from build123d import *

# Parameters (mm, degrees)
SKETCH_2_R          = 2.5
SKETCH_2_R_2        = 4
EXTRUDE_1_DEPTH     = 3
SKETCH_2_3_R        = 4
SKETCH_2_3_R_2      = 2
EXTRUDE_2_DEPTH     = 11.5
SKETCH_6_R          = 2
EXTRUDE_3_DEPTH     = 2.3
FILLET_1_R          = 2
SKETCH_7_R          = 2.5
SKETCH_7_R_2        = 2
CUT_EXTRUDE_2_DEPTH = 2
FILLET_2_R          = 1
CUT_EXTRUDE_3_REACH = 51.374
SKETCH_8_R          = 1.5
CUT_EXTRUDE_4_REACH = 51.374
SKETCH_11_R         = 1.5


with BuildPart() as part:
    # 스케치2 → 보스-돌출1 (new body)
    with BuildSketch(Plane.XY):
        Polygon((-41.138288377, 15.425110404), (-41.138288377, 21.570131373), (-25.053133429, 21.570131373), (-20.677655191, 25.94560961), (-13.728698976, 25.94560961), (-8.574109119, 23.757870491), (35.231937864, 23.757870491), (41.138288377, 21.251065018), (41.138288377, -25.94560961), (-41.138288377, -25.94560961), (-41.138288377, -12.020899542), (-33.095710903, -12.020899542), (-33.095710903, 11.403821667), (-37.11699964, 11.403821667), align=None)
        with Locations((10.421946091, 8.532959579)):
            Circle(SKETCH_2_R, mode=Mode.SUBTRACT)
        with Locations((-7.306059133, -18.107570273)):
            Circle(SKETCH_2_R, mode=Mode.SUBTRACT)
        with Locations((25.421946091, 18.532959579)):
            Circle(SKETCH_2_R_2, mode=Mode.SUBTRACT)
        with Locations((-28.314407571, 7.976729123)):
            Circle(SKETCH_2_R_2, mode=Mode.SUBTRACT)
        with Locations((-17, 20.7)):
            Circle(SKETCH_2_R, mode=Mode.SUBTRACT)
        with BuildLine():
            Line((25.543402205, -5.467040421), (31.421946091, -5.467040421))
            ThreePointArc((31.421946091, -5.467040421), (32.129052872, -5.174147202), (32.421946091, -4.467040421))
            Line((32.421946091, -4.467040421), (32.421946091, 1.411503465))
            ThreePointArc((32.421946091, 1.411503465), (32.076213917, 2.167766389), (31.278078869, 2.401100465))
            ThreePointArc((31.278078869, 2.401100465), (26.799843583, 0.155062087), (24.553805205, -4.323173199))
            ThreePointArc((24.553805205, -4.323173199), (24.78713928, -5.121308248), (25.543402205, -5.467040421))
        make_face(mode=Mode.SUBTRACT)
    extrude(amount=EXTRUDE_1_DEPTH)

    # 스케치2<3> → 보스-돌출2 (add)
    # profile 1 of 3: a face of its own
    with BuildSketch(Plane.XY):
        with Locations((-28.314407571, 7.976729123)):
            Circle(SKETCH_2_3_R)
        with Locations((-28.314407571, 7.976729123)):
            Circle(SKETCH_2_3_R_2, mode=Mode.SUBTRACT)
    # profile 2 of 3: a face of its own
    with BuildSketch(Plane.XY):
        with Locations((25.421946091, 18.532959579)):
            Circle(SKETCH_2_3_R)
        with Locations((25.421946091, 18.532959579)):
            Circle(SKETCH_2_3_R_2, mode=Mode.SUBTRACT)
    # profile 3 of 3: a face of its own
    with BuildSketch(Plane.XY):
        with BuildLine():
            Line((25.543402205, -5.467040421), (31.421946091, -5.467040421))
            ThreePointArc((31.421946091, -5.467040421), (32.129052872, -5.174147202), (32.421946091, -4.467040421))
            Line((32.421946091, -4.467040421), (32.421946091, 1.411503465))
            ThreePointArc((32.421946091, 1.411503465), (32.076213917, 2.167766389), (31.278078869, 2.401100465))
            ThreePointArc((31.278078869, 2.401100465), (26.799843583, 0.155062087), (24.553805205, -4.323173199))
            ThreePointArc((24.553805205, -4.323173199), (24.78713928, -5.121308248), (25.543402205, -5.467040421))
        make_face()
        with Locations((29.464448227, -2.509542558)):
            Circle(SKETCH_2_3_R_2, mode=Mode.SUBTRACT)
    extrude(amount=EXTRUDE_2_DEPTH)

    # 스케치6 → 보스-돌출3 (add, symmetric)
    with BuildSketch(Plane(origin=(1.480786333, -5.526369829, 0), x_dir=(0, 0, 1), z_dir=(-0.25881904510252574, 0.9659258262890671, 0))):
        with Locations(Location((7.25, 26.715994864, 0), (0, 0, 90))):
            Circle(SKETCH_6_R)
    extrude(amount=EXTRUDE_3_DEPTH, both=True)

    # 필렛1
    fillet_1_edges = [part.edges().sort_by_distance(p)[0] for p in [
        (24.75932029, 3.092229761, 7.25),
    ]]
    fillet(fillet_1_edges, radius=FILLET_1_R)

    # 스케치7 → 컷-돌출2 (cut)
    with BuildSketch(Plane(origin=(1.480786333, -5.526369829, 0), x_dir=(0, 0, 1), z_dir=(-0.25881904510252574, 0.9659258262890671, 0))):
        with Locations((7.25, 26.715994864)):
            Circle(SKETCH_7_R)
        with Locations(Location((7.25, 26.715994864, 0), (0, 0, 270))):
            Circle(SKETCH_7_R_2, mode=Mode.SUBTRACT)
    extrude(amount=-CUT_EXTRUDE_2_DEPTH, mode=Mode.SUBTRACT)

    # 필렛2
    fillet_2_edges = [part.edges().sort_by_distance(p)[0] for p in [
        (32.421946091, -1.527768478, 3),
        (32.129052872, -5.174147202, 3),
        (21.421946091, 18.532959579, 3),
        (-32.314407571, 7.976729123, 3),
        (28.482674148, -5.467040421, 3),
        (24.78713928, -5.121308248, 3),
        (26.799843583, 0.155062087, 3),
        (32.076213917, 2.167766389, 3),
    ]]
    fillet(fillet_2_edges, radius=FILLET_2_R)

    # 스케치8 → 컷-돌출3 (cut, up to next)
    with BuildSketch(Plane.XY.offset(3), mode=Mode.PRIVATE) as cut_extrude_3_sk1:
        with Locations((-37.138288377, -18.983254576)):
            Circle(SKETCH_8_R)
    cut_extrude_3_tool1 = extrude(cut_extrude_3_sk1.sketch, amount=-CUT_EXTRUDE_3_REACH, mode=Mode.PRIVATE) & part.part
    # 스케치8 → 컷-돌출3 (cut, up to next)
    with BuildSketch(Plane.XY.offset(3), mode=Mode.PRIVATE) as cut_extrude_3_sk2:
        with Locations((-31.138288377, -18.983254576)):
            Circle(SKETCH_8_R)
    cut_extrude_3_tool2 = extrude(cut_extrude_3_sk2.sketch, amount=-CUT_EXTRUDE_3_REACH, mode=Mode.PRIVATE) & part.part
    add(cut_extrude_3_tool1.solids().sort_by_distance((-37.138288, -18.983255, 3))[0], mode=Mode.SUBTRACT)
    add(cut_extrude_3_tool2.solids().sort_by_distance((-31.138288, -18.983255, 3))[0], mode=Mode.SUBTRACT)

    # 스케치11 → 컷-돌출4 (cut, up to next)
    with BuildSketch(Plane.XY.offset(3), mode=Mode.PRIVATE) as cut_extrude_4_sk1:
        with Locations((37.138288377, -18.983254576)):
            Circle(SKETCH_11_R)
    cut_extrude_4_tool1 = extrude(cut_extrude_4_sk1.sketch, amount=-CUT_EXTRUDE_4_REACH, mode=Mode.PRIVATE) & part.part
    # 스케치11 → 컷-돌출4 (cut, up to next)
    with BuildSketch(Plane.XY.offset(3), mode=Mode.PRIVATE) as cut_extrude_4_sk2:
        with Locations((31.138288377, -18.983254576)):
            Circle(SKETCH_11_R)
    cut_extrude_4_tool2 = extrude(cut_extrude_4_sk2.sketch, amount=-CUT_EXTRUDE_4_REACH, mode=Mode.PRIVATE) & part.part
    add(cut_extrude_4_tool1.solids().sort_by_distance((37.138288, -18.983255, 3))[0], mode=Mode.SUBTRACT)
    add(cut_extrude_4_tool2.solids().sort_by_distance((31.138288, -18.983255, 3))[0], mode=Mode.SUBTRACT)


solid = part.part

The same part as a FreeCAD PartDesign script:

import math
import FreeCAD as App
import Part
import Sketcher

V = App.Vector
Q = App.Units.Quantity


def edges_at(feature, points):
    """Names of the edges that pass closest to the given points."""
    edges = feature.Shape.Edges
    near = lambda p: min(range(len(edges)), key=lambda i: edges[i].distToShape(Part.Vertex(*p))[0])
    return sorted({f"Edge{near(p) + 1}" for p in points})


def add_polygon(sketch, points):
    """Adds a closed chain of lines whose ends are joined by coincident constraints."""
    first, n = sketch.GeometryCount, len(points)
    for a, b in zip(points, points[1:] + points[:1]):
        sketch.addGeometry(Part.LineSegment(App.Vector(*a, 0), App.Vector(*b, 0)), False)
    for i in range(n):
        sketch.addConstraint(Sketcher.Constraint("Coincident", first + i, 2, first + (i + 1) % n, 1))

doc = App.newDocument("Part")
body = doc.addObject("PartDesign::Body", "Body")

# Sketch on XY plane
sketch1 = body.newObject("Sketcher::SketchObject", "Sketch")
sketch1.AttachmentSupport = (doc.getObject("XY_Plane"), [""])
sketch1.MapMode = "FlatFace"
add_polygon(sketch1, [(-41.138288, 21.570131), (-41.138288, 15.42511), (-37.117, 11.403822), (-33.095711, 11.403822), (-33.095711, -12.0209), (-41.138288, -12.0209), (-41.138288, -25.94561), (41.138288, -25.94561), (41.138288, 21.251065), (35.231938, 23.75787), (-8.574109, 23.75787), (-13.728699, 25.94561), (-20.677655, 25.94561), (-25.053133, 21.570131)])  # lines 0-13
sketch1.addGeometry(Part.ArcOfCircle(Part.Circle(V(25.543402, -4.46704, 0), V(0, 0, 1), 1), math.radians(171.728312), math.radians(270)), False)  # 14
sketch1.addGeometry(Part.ArcOfCircle(Part.Circle(V(32.421946, -5.46704, 0), V(0, 0, 1), 7.950854), math.radians(98.271688), math.radians(171.728312)), False)  # 15
sketch1.addGeometry(Part.ArcOfCircle(Part.Circle(V(31.421946, 1.411503, 0), V(0, 0, 1), 1), math.radians(0), math.radians(98.271688)), False)  # 16
sketch1.addGeometry(Part.LineSegment(V(32.421946, 1.411503, 0), V(32.421946, -4.46704, 0)), False)  # 17
sketch1.addGeometry(Part.ArcOfCircle(Part.Circle(V(31.421946, -4.46704, 0), V(0, 0, 1), 1), math.radians(-90), math.radians(0)), False)  # 18
sketch1.addGeometry(Part.LineSegment(V(31.421946, -5.46704, 0), V(25.543402, -5.46704, 0)), False)  # 19
sketch1.addGeometry(Part.Circle(V(-7.306059, -18.10757, 0), V(0, 0, 1), 2.5), False)  # 20
sketch1.addGeometry(Part.Circle(V(10.421946, 8.53296, 0), V(0, 0, 1), 2.5), False)  # 21
sketch1.addGeometry(Part.Circle(V(25.421946, 18.53296, 0), V(0, 0, 1), 4), False)  # 22
sketch1.addGeometry(Part.Circle(V(-28.314408, 7.976729, 0), V(0, 0, 1), 4), False)  # 23
sketch1.addGeometry(Part.Circle(V(-17, 20.7, 0), V(0, 0, 1), 2.5), False)  # 24
sketch1.addConstraint([
    Sketcher.Constraint("Tangent", 14, 1, 15, 2),
    Sketcher.Constraint("Tangent", 15, 1, 16, 2),
    Sketcher.Constraint("Tangent", 16, 1, 17, 1),
    Sketcher.Constraint("Tangent", 17, 2, 18, 2),
    Sketcher.Constraint("Tangent", 18, 1, 19, 1),
    Sketcher.Constraint("Tangent", 19, 2, 14, 2),
    Sketcher.Constraint("Vertical", 0),
    Sketcher.Constraint("Horizontal", 2),
    Sketcher.Constraint("Vertical", 3),
    Sketcher.Constraint("Horizontal", 4),
    Sketcher.Constraint("Vertical", 5),
    Sketcher.Constraint("Horizontal", 6),
    Sketcher.Constraint("Vertical", 7),
    Sketcher.Constraint("Horizontal", 9),
    Sketcher.Constraint("Horizontal", 11),
    Sketcher.Constraint("Horizontal", 13),
    Sketcher.Constraint("Vertical", 17),
    Sketcher.Constraint("Horizontal", 19),
    Sketcher.Constraint("Equal", 14, 16),
    Sketcher.Constraint("Equal", 16, 18),
    Sketcher.Constraint("Equal", 20, 21),
    Sketcher.Constraint("Equal", 22, 23),
    Sketcher.Constraint("Equal", 21, 24),
    Sketcher.Constraint("Parallel", 8, 10),
    Sketcher.Constraint("Perpendicular", 1, 12),
    Sketcher.Constraint("Horizontal", 15, 3, 18, 1),
    Sketcher.Constraint("Vertical", 0, 2, 4, 2),
    Sketcher.Constraint("Vertical", 15, 3, 16, 1),
    Sketcher.Constraint("Diameter", 20, 5.0),
    Sketcher.Constraint("Diameter", 22, 8.0),
    Sketcher.Constraint("Radius", 14, 1.0),
    Sketcher.Constraint("Angle", 1, Q("-45 deg")),
    Sketcher.Constraint("DistanceX", 24, 3, -1, 1, 17.0),
    Sketcher.Constraint("DistanceY", 14, 3, 21, 3, 13.0),
    Sketcher.Constraint("DistanceX", 21, 3, 16, 3, 21.0),
    Sketcher.Constraint("DistanceX", 21, 3, 22, 3, 15.0),
    Sketcher.Constraint("DistanceY", 21, 3, 22, 3, 10.0),
    Sketcher.Constraint("DistanceY", -1, 1, 24, 3, 20.7),
    Sketcher.Constraint("DistanceX", 1, 2, -1, 1, 37.117),
    Sketcher.Constraint("Radius", 15, 7.950854),
    Sketcher.Constraint("DistanceX", 2, 1, 2, 2, 4.021289),
    Sketcher.Constraint("DistanceY", 0, 2, 0, 1, 6.145021),
    Sketcher.Constraint("DistanceY", 3, 2, 3, 1, 23.424721),
    Sketcher.Constraint("DistanceY", 5, 2, 5, 1, 13.92471),
    Sketcher.Constraint("DistanceY", 3, 2, -1, 1, 12.0209),
    Sketcher.Constraint("DistanceX", 10, 2, -1, 1, 13.728699),
    Sketcher.Constraint("DistanceY", -1, 1, 15, 1, 2.4011),
    Sketcher.Constraint("DistanceY", 20, 3, 23, 3, 26.084299),
    Sketcher.Constraint("DistanceX", 23, 3, 9, 2, 19.740298),
    Sketcher.Constraint("DistanceX", 2, 2, 9, 2, 24.521602),
    Sketcher.Constraint("Distance", 1, 5.686961),
    Sketcher.Constraint("Distance", 8, 6.416311),
    Sketcher.Constraint("Distance", 12, 6.187861),
    Sketcher.Constraint("DistanceX", 6, 1, 6, 2, 82.276577),
    Sketcher.Constraint("DistanceX", 9, 2, 9, 1, 43.806047),
    Sketcher.Constraint("DistanceX", 11, 2, 11, 1, 6.948956),
    Sketcher.Constraint("DistanceX", 20, 3, -1, 1, 7.306059),
    Sketcher.Constraint("DistanceY", 20, 3, -1, 1, 18.10757),
    Sketcher.Constraint("DistanceX", -1, 1, 15, 1, 31.278079),
])
pad1 = body.newObject("PartDesign::Pad", "Pad")
pad1.Profile = sketch1
pad1.Length = 3

# Sketch on XY plane
sketch2 = body.newObject("Sketcher::SketchObject", "Sketch001")
sketch2.AttachmentSupport = (doc.getObject("XY_Plane"), [""])
sketch2.MapMode = "FlatFace"
sketch2.addGeometry([
    Part.Circle(V(-28.314408, 7.976729, 0), V(0, 0, 1), 4),  # 0
    Part.Circle(V(-28.314408, 7.976729, 0), V(0, 0, 1), 2),  # 1
    Part.Circle(V(25.421946, 18.53296, 0), V(0, 0, 1), 4),  # 2
    Part.Circle(V(25.421946, 18.53296, 0), V(0, 0, 1), 2),  # 3
    Part.LineSegment(V(25.543402, -5.46704, 0), V(31.421946, -5.46704, 0)),  # 4
    Part.ArcOfCircle(Part.Circle(V(31.421946, -4.46704, 0), V(0, 0, 1), 1), math.radians(-90), math.radians(0)),  # 5
    Part.LineSegment(V(32.421946, -4.46704, 0), V(32.421946, 1.411503, 0)),  # 6
    Part.ArcOfCircle(Part.Circle(V(31.421946, 1.411503, 0), V(0, 0, 1), 1), math.radians(0), math.radians(98.271688)),  # 7
    Part.ArcOfCircle(Part.Circle(V(32.421946, -5.46704, 0), V(0, 0, 1), 7.950854), math.radians(98.271688), math.radians(171.728312)),  # 8
    Part.ArcOfCircle(Part.Circle(V(25.543402, -4.46704, 0), V(0, 0, 1), 1), math.radians(171.728312), math.radians(270)),  # 9
    Part.Circle(V(29.464448, -2.509543, 0), V(0, 0, 1), 2),  # 10
], False)
sketch2.addConstraint([
    Sketcher.Constraint("Tangent", 4, 2, 5, 1),
    Sketcher.Constraint("Tangent", 5, 2, 6, 1),
    Sketcher.Constraint("Tangent", 6, 2, 7, 1),
    Sketcher.Constraint("Tangent", 7, 2, 8, 1),
    Sketcher.Constraint("Tangent", 8, 2, 9, 1),
    Sketcher.Constraint("Tangent", 9, 2, 4, 1),
    Sketcher.Constraint("Horizontal", 4),
    Sketcher.Constraint("Vertical", 6),
    Sketcher.Constraint("Coincident", 1, 3, 0, 3),
    Sketcher.Constraint("Coincident", 3, 3, 2, 3),
    Sketcher.Constraint("Equal", 0, 2),
    Sketcher.Constraint("Equal", 1, 3),
    Sketcher.Constraint("Equal", 5, 7),
    Sketcher.Constraint("Equal", 7, 9),
    Sketcher.Constraint("Equal", 3, 10),
    Sketcher.Constraint("Horizontal", 8, 3, 4, 2),
    Sketcher.Constraint("Vertical", 8, 3, 5, 2),
    Sketcher.Constraint("Diameter", 0, 8.0),
    Sketcher.Constraint("Diameter", 1, 4.0),
    Sketcher.Constraint("Radius", 5, 1.0),
    Sketcher.Constraint("DistanceX", 2, 3, 5, 3, 6.0),
    Sketcher.Constraint("DistanceY", 5, 3, 2, 3, 23.0),
    Sketcher.Constraint("Radius", 8, 7.950854),
    Sketcher.Constraint("DistanceY", -1, 1, 7, 2, 2.4011),
    Sketcher.Constraint("DistanceY", -1, 1, 0, 3, 7.976729),
    Sketcher.Constraint("DistanceX", -1, 1, 10, 3, 29.464448),
    Sketcher.Constraint("DistanceX", -1, 1, 7, 2, 31.278079),
    Sketcher.Constraint("DistanceY", 8, 2, 10, 3, 1.813631),
    Sketcher.Constraint("DistanceX", 0, 3, -1, 1, 28.314408),
])
pad2 = body.newObject("PartDesign::Pad", "Pad001")
pad2.Profile = sketch2
pad2.Length = 11.5

# Sketch on an angled plane
sketch3 = body.newObject("Sketcher::SketchObject", "Sketch002")
sketch3.Placement = App.Placement(V(1.480786, -5.52637, 0), App.Rotation(V(0, 0, 1), V(0.965925826, 0.258819045, 0), V(-0.258819045, 0.965925826, 0), "ZXY"))
sketch3.addGeometry(Part.Circle(V(7.25, 26.715995, 0), V(0, 0, 1), 2), False)
sketch3.addConstraint([
    Sketcher.Constraint("Diameter", 0, 4.0),
    Sketcher.Constraint("DistanceX", -1, 1, 0, 3, 7.25),
    Sketcher.Constraint("DistanceY", -1, 1, 0, 3, 26.715995),
])
pad3 = body.newObject("PartDesign::Pad", "Pad002")
pad3.Profile = sketch3
pad3.Length = 4.6
pad3.Midplane = True
doc.recompute()

fillet = body.newObject("PartDesign::Fillet", "Fillet")
fillet.Base = (pad3, edges_at(pad3, [(24.759, 3.092, 7.25)]))
fillet.Radius = 2

# Sketch on an angled plane
sketch4 = body.newObject("Sketcher::SketchObject", "Sketch003")
sketch4.Placement = App.Placement(V(1.480786, -5.52637, 0), App.Rotation(V(0, 0, 1), V(0.965925826, 0.258819045, 0), V(-0.258819045, 0.965925826, 0), "ZXY"))
sketch4.addGeometry([
    Part.Circle(V(7.25, 26.715995, 0), V(0, 0, 1), 2.5),
    Part.Circle(V(7.25, 26.715995, 0), V(0, 0, 1), 2),
], False)
sketch4.addConstraint([
    Sketcher.Constraint("Coincident", 1, 3, 0, 3),
    Sketcher.Constraint("Diameter", 0, 5.0),
    Sketcher.Constraint("Diameter", 1, 4.0),
    Sketcher.Constraint("DistanceX", -1, 1, 0, 3, 7.25),
    Sketcher.Constraint("DistanceY", -1, 1, 0, 3, 26.715995),
])
pocket1 = body.newObject("PartDesign::Pocket", "Pocket")
pocket1.Profile = sketch4
pocket1.Length = 2
doc.recompute()

fillet2 = body.newObject("PartDesign::Fillet", "Fillet001")
fillet2.Base = (pocket1, edges_at(pocket1, [
    (32.422, -1.528, 3),
    (32.129, -5.174, 3),
    (21.422, 18.533, 3),
    (-32.314, 7.977, 3),
    (28.483, -5.467, 3),
    (24.787, -5.121, 3),
    (26.8, 0.155, 3),
    (32.076, 2.168, 3),
]))
fillet2.Radius = 1

# Sketch on XY plane
sketch5 = body.newObject("Sketcher::SketchObject", "Sketch004")
sketch5.AttachmentSupport = (doc.getObject("XY_Plane"), [""])
sketch5.MapMode = "FlatFace"
sketch5.AttachmentOffset = App.Placement(V(0, 0, 3), App.Rotation())
sketch5.addGeometry(Part.Circle(V(-37.138288, -18.983255, 0), V(0, 0, 1), 1.5), False)
sketch5.addConstraint([
    Sketcher.Constraint("Diameter", 0, 3.0),
    Sketcher.Constraint("DistanceX", 0, 3, -1, 1, 37.138288),
    Sketcher.Constraint("DistanceY", 0, 3, -1, 1, 18.983255),
])
pocket2 = body.newObject("PartDesign::Pocket", "Pocket001")
pocket2.Profile = sketch5
pocket2.Type = "UpToFirst"

# Sketch on XY plane
sketch6 = body.newObject("Sketcher::SketchObject", "Sketch005")
sketch6.AttachmentSupport = (doc.getObject("XY_Plane"), [""])
sketch6.MapMode = "FlatFace"
sketch6.AttachmentOffset = App.Placement(V(0, 0, 3), App.Rotation())
sketch6.addGeometry(Part.Circle(V(-31.138288, -18.983255, 0), V(0, 0, 1), 1.5), False)
sketch6.addConstraint([
    Sketcher.Constraint("Diameter", 0, 3.0),
    Sketcher.Constraint("DistanceX", 0, 3, -1, 1, 31.138288),
    Sketcher.Constraint("DistanceY", 0, 3, -1, 1, 18.983255),
])
pocket3 = body.newObject("PartDesign::Pocket", "Pocket002")
pocket3.Profile = sketch6
pocket3.Type = "UpToFirst"

# Sketch on XY plane
sketch7 = body.newObject("Sketcher::SketchObject", "Sketch006")
sketch7.AttachmentSupport = (doc.getObject("XY_Plane"), [""])
sketch7.MapMode = "FlatFace"
sketch7.AttachmentOffset = App.Placement(V(0, 0, 3), App.Rotation())
sketch7.addGeometry(Part.Circle(V(37.138288, -18.983255, 0), V(0, 0, 1), 1.5), False)
sketch7.addConstraint([
    Sketcher.Constraint("Diameter", 0, 3.0),
    Sketcher.Constraint("DistanceX", -1, 1, 0, 3, 37.138288),
    Sketcher.Constraint("DistanceY", 0, 3, -1, 1, 18.983255),
])
pocket4 = body.newObject("PartDesign::Pocket", "Pocket003")
pocket4.Profile = sketch7
pocket4.Type = "UpToFirst"

# Sketch on XY plane
sketch8 = body.newObject("Sketcher::SketchObject", "Sketch007")
sketch8.AttachmentSupport = (doc.getObject("XY_Plane"), [""])
sketch8.MapMode = "FlatFace"
sketch8.AttachmentOffset = App.Placement(V(0, 0, 3), App.Rotation())
sketch8.addGeometry(Part.Circle(V(31.138288, -18.983255, 0), V(0, 0, 1), 1.5), False)
sketch8.addConstraint([
    Sketcher.Constraint("Diameter", 0, 3.0),
    Sketcher.Constraint("DistanceX", -1, 1, 0, 3, 31.138288),
    Sketcher.Constraint("DistanceY", 0, 3, -1, 1, 18.983255),
])
pocket5 = body.newObject("PartDesign::Pocket", "Pocket004")
pocket5.Profile = sketch8
pocket5.Type = "UpToFirst"

doc.recompute()
